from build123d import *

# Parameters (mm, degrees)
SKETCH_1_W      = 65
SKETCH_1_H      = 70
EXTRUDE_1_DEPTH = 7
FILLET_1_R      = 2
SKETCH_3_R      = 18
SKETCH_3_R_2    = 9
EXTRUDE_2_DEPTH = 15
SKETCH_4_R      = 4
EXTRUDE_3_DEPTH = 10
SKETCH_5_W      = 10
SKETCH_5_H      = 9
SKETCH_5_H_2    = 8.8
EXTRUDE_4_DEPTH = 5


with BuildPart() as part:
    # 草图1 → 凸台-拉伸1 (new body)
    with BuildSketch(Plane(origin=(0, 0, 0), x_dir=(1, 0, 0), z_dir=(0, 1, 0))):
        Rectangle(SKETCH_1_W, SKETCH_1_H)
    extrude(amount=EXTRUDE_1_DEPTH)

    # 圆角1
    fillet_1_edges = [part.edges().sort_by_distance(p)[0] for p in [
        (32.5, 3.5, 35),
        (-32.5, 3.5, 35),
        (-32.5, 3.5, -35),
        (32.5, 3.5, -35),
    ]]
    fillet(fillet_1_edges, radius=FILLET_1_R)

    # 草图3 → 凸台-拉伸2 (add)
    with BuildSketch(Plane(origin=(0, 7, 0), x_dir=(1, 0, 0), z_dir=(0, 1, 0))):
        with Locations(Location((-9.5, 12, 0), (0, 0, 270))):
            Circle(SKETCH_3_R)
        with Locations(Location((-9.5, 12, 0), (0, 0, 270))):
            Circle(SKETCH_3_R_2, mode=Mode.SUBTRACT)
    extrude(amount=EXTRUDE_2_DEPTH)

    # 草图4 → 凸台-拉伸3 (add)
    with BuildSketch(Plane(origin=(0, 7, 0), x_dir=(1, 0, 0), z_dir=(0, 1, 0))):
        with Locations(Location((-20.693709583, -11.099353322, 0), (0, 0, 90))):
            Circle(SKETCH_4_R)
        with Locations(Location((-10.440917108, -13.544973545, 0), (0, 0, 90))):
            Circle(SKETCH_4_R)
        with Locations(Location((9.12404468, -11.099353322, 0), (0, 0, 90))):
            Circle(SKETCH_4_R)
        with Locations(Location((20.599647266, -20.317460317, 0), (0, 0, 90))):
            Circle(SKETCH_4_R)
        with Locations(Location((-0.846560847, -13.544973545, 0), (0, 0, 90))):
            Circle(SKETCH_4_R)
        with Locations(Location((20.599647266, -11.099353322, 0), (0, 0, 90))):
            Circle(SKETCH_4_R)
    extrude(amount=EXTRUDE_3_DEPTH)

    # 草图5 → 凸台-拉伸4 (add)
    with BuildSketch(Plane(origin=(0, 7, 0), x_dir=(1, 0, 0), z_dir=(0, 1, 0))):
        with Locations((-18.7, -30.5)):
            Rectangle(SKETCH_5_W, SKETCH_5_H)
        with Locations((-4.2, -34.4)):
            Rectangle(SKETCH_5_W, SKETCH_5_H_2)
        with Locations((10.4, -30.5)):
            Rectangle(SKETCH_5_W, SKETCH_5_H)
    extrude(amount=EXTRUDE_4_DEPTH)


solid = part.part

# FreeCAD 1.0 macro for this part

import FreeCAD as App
import Part
import Sketcher


def edges_at(feature, points):
    """Names of the edges that pass closest to the given points."""
    edges = feature.Shape.Edges
    near = lambda p: min(range(len(edges)), key=lambda i: edges[i].distToShape(Part.Vertex(*p))[0])
    return sorted({f"Edge{near(p) + 1}" for p in points})

doc = App.newDocument("Part")
body = doc.addObject("PartDesign::Body", "Body")

sketch1 = body.newObject("Sketcher::SketchObject", "Sketch")
sketch1.AttachmentSupport = (doc.getObject("XZ_Plane"), [""])
sketch1.MapMode = "FlatFace"
sketch1.addGeometry(Part.LineSegment(App.Vector(-32.5, -35, 0), App.Vector(-32.5, 35, 0)), False)
sketch1.addGeometry(Part.LineSegment(App.Vector(-32.5, 35, 0), App.Vector(32.5, 35, 0)), False)
sketch1.addGeometry(Part.LineSegment(App.Vector(32.5, 35, 0), App.Vector(32.5, -35, 0)), False)
sketch1.addGeometry(Part.LineSegment(App.Vector(32.5, -35, 0), App.Vector(-32.5, -35, 0)), False)
sketch1.addConstraint(Sketcher.Constraint("Coincident", 0, 2, 1, 1))
sketch1.addConstraint(Sketcher.Constraint("Coincident", 1, 2, 2, 1))
sketch1.addConstraint(Sketcher.Constraint("Coincident", 2, 2, 3, 1))
sketch1.addConstraint(Sketcher.Constraint("Coincident", 3, 2, 0, 1))
sketch1.addConstraint(Sketcher.Constraint("Vertical", 0))
sketch1.addConstraint(Sketcher.Constraint("Horizontal", 1))
sketch1.addConstraint(Sketcher.Constraint("Vertical", 2))
sketch1.addConstraint(Sketcher.Constraint("Horizontal", 3))
sketch1.addConstraint(Sketcher.Constraint("Symmetric", 0, 2, 2, 2, -1, 1))
sketch1.addConstraint(Sketcher.Constraint("DistanceX", 1, 1, 1, 2, 65.0))
sketch1.addConstraint(Sketcher.Constraint("DistanceY", 0, 1, 0, 2, 70.0))
pad1 = body.newObject("PartDesign::Pad", "Pad")
pad1.Profile = sketch1
pad1.Length = 7
pad1.Reversed = True
doc.recompute()

fillet = body.newObject("PartDesign::Fillet", "Fillet")
fillet.Base = (pad1, edges_at(pad1, [
    (32.5, 3.5, 35),
    (-32.5, 3.5, 35),
    (-32.5, 3.5, -35),
    (32.5, 3.5, -35),
]))
fillet.Radius = 2

sketch2 = body.newObject("Sketcher::SketchObject", "Sketch001")
sketch2.AttachmentSupport = (doc.getObject("XZ_Plane"), [""])
sketch2.MapMode = "FlatFace"
sketch2.AttachmentOffset = App.Placement(App.Vector(0, 0, -7), App.Rotation())
sketch2.addGeometry(Part.Circle(App.Vector(-9.5, -12, 0), App.Vector(0, 0, 1), 18), False)
sketch2.addGeometry(Part.Circle(App.Vector(-9.5, -12, 0), App.Vector(0, 0, 1), 9), False)
sketch2.addConstraint(Sketcher.Constraint("Coincident", 1, 3, 0, 3))
sketch2.addConstraint(Sketcher.Constraint("Diameter", 0, 36.0))
sketch2.addConstraint(Sketcher.Constraint("Diameter", 1, 18.0))
sketch2.addConstraint(Sketcher.Constraint("DistanceY", 0, 3, -1, 1, 12.0))
sketch2.addConstraint(Sketcher.Constraint("DistanceX", 0, 3, -1, 1, 9.5))
pad2 = body.newObject("PartDesign::Pad", "Pad001")
pad2.Profile = sketch2
pad2.Length = 15
pad2.Reversed = True

sketch3 = body.newObject("Sketcher::SketchObject", "Sketch002")
sketch3.AttachmentSupport = (doc.getObject("XZ_Plane"), [""])
sketch3.MapMode = "FlatFace"
sketch3.AttachmentOffset = App.Placement(App.Vector(0, 0, -7), App.Rotation())
sketch3.addGeometry(Part.Circle(App.Vector(-20.69371, 11.099353, 0), App.Vector(0, 0, 1), 4), False)
sketch3.addGeometry(Part.Circle(App.Vector(-10.440917, 13.544974, 0), App.Vector(0, 0, 1), 4), False)
sketch3.addGeometry(Part.Circle(App.Vector(9.124045, 11.099353, 0), App.Vector(0, 0, 1), 4), False)
sketch3.addGeometry(Part.Circle(App.Vector(20.599647, 20.31746, 0), App.Vector(0, 0, 1), 4), False)
sketch3.addGeometry(Part.Circle(App.Vector(-0.846561, 13.544974, 0), App.Vector(0, 0, 1), 4), False)
sketch3.addGeometry(Part.Circle(App.Vector(20.599647, 11.099353, 0), App.Vector(0, 0, 1), 4), False)
sketch3.addConstraint(Sketcher.Constraint("Equal", 0, 1))
sketch3.addConstraint(Sketcher.Constraint("Equal", 1, 2))
sketch3.addConstraint(Sketcher.Constraint("Equal", 2, 3))
sketch3.addConstraint(Sketcher.Constraint("Equal", 3, 4))
sketch3.addConstraint(Sketcher.Constraint("Equal", 4, 5))
sketch3.addConstraint(Sketcher.Constraint("Horizontal", 0, 3, 2, 3))
sketch3.addConstraint(Sketcher.Constraint("Horizontal", 1, 3, 4, 3))
sketch3.addConstraint(Sketcher.Constraint("Horizontal", 2, 3, 5, 3))
sketch3.addConstraint(Sketcher.Constraint("Vertical", 3, 3, 5, 3))
sketch3.addConstraint(Sketcher.Constraint("Diameter", 0, 8.0))
sketch3.addConstraint(Sketcher.Constraint("DistanceX", 0, 3, -1, 1, 20.69371))
sketch3.addConstraint(Sketcher.Constraint("DistanceY", -1, 1, 3, 3, 20.31746))
sketch3.addConstraint(Sketcher.Constraint("DistanceX", 4, 3, -1, 1, 0.846561))
sketch3.addConstraint(Sketcher.Constraint("DistanceY", 0, 3, 1, 3, 2.44562))
sketch3.addConstraint(Sketcher.Constraint("DistanceX", 1, 3, 2, 3, 19.564962))
sketch3.addConstraint(Sketcher.Constraint("DistanceX", 4, 3, 3, 3, 21.446208))
sketch3.addConstraint(Sketcher.Constraint("DistanceY", -1, 1, 0, 3, 11.099353))
sketch3.addConstraint(Sketcher.Constraint("DistanceX", 1, 3, -1, 1, 10.440917))
pad3 = body.newObject("PartDesign::Pad", "Pad002")
pad3.Profile = sketch3
pad3.Length = 10
pad3.Reversed = True

sketch4 = body.newObject("Sketcher::SketchObject", "Sketch003")
sketch4.AttachmentSupport = (doc.getObject("XZ_Plane"), [""])
sketch4.MapMode = "FlatFace"
sketch4.AttachmentOffset = App.Placement(App.Vector(0, 0, -7), App.Rotation())
sketch4.addGeometry(Part.LineSegment(App.Vector(-23.7, 26, 0), App.Vector(-23.7, 35, 0)), False)
sketch4.addGeometry(Part.LineSegment(App.Vector(-23.7, 35, 0), App.Vector(-13.7, 35, 0)), False)
sketch4.addGeometry(Part.LineSegment(App.Vector(-13.7, 35, 0), App.Vector(-13.7, 26, 0)), False)
sketch4.addGeometry(Part.LineSegment(App.Vector(-13.7, 26, 0), App.Vector(-23.7, 26, 0)), False)
sketch4.addGeometry(Part.LineSegment(App.Vector(-9.2, 30, 0), App.Vector(-9.2, 38.8, 0)), False)
sketch4.addGeometry(Part.LineSegment(App.Vector(-9.2, 38.8, 0), App.Vector(0.8, 38.8, 0)), False)
sketch4.addGeometry(Part.LineSegment(App.Vector(0.8, 38.8, 0), App.Vector(0.8, 30, 0)), False)
sketch4.addGeometry(Part.LineSegment(App.Vector(0.8, 30, 0), App.Vector(-9.2, 30, 0)), False)
sketch4.addGeometry(Part.LineSegment(App.Vector(5.4, 26, 0), App.Vector(5.4, 35, 0)), False)
sketch4.addGeometry(Part.LineSegment(App.Vector(5.4, 35, 0), App.Vector(15.4, 35, 0)), False)
sketch4.addGeometry(Part.LineSegment(App.Vector(15.4, 35, 0), App.Vector(15.4, 26, 0)), False)
sketch4.addGeometry(Part.LineSegment(App.Vector(15.4, 26, 0), App.Vector(5.4, 26, 0)), False)
sketch4.addConstraint(Sketcher.Constraint("Coincident", 0, 2, 1, 1))
sketch4.addConstraint(Sketcher.Constraint("Coincident", 1, 2, 2, 1))
sketch4.addConstraint(Sketcher.Constraint("Coincident", 2, 2, 3, 1))
sketch4.addConstraint(Sketcher.Constraint("Coincident", 3, 2, 0, 1))
sketch4.addConstraint(Sketcher.Constraint("Coincident", 4, 2, 5, 1))
sketch4.addConstraint(Sketcher.Constraint("Coincident", 5, 2, 6, 1))
sketch4.addConstraint(Sketcher.Constraint("Coincident", 6, 2, 7, 1))
sketch4.addConstraint(Sketcher.Constraint("Coincident", 7, 2, 4, 1))
sketch4.addConstraint(Sketcher.Constraint("Coincident", 8, 2, 9, 1))
sketch4.addConstraint(Sketcher.Constraint("Coincident", 9, 2, 10, 1))
sketch4.addConstraint(Sketcher.Constraint("Coincident", 10, 2, 11, 1))
sketch4.addConstraint(Sketcher.Constraint("Coincident", 11, 2, 8, 1))
sketch4.addConstraint(Sketcher.Constraint("Vertical", 0))
sketch4.addConstraint(Sketcher.Constraint("Horizontal", 1))
sketch4.addConstraint(Sketcher.Constraint("Vertical", 2))
sketch4.addConstraint(Sketcher.Constraint("Horizontal", 3))
sketch4.addConstraint(Sketcher.Constraint("Vertical", 4))
sketch4.addConstraint(Sketcher.Constraint("Horizontal", 5))
sketch4.addConstraint(Sketcher.Constraint("Vertical", 6))
sketch4.addConstraint(Sketcher.Constraint("Horizontal", 7))
sketch4.addConstraint(Sketcher.Constraint("Vertical", 8))
sketch4.addConstraint(Sketcher.Constraint("Horizontal", 9))
sketch4.addConstraint(Sketcher.Constraint("Vertical", 10))
sketch4.addConstraint(Sketcher.Constraint("Horizontal", 11))
sketch4.addConstraint(Sketcher.Constraint("Horizontal", 1, 2, 8, 2))
sketch4.addConstraint(Sketcher.Constraint("Horizontal", 3, 2, 10, 2))
sketch4.addConstraint(Sketcher.Constraint("Equal", 3, 5))
sketch4.addConstraint(Sketcher.Constraint("Equal", 7, 9))
sketch4.addConstraint(Sketcher.Constraint("DistanceX", 1, 1, 1, 2, 10.0))
sketch4.addConstraint(Sketcher.Constraint("DistanceY", 0, 1, 0, 2, 9.0))
sketch4.addConstraint(Sketcher.Constraint("DistanceY", 4, 1, 4, 2, 8.8))
sketch4.addConstraint(Sketcher.Constraint("DistanceY", -1, 1, 0, 2, 35.0))
sketch4.addConstraint(Sketcher.Constraint("DistanceY", -1, 1, 6, 2, 30.0))
sketch4.addConstraint(Sketcher.Constraint("DistanceX", 0, 2, -1, 1, 23.7))
sketch4.addConstraint(Sketcher.Constraint("DistanceX", 4, 2, -1, 1, 9.2))
sketch4.addConstraint(Sketcher.Constraint("DistanceX", -1, 1, 8, 2, 5.4))
pad4 = body.newObject("PartDesign::Pad", "Pad003")
pad4.Profile = sketch4
pad4.Length = 5
pad4.Reversed = True

doc.recompute()
